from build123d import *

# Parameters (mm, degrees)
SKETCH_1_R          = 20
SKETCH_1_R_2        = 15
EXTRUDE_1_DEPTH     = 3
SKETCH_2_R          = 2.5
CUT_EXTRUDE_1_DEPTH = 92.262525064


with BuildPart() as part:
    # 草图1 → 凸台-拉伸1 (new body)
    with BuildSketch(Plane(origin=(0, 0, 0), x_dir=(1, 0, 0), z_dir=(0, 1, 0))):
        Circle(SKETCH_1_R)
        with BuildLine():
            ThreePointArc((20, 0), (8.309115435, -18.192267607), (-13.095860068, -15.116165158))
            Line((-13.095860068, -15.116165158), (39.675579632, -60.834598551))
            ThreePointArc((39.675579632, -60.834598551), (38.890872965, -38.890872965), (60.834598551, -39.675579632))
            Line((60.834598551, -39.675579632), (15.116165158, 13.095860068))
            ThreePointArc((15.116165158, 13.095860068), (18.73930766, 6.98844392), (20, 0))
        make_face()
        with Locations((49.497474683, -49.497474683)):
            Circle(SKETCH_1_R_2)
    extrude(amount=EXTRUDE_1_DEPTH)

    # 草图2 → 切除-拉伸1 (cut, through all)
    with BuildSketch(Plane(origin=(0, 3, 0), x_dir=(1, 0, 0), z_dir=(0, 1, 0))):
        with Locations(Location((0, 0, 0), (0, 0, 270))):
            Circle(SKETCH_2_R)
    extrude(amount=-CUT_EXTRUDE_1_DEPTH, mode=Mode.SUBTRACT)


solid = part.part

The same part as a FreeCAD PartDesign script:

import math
import FreeCAD as App
import Part
import Sketcher
from FreeCAD import Vector
Q = App.Units.Quantity

doc = App.newDocument("Part")
params = doc.addObject("Spreadsheet::Sheet", "Params")
for row, (alias, value) in enumerate([
    ("sketch1_radius", "20 mm"),
    ("sketch1_radius2", "15 mm"),
    ("pad1_length", "3 mm"),
    ("sketch2_diameter", "5 mm"),
], start=1):
    params.set(f"A{row}", alias)
    params.set(f"B{row}", "=" + value)
    params.setAlias(f"B{row}", alias)

body = doc.addObject("PartDesign::Body", "Body")

# Sketch on XZ plane
sketch1 = doc.addObject("Sketcher::SketchObject", "Sketch")
body.addObject(sketch1)
sketch1.AttachmentSupport = (doc.XZ_Plane, [""])
sketch1.MapMode = "FlatFace"
sketch1.addGeometry([
    Part.ArcOfCircle(Part.Circle(Vector(0, 0, 0), Vector(0, 0, 1), 20), math.radians(131), math.radians(319)),
    Part.LineSegment(Vector(-13, 15, 0), Vector(40, 61, 0)),
    Part.ArcOfCircle(Part.Circle(Vector(49, 49, 0), Vector(0, 0, 1), 15), math.radians(-41), math.radians(131)),
    Part.LineSegment(Vector(61, 40, 0), Vector(15, -13, 0)),
], False)
sketch1.addConstraint([
    Sketcher.Constraint("Tangent", 0, 1, 1, 1),
    Sketcher.Constraint("Tangent", 1, 2, 2, 2),
    Sketcher.Constraint("Tangent", 2, 1, 3, 1),
    Sketcher.Constraint("Tangent", 3, 2, 0, 2),
    Sketcher.Constraint("Coincident", 0, 3, -1, 1),
    Sketcher.Constraint("Radius", 0, Q("20 mm")),
    Sketcher.Constraint("Radius", 2, Q("15 mm")),
    Sketcher.Constraint("Distance", 1, Q("69.8212 mm")),
    Sketcher.Constraint("DistanceY", -1, 1, 1, 2, Q("60.834599 mm")),
])
sketch1.setExpression("Constraints[5]", "Params.sketch1_radius")
sketch1.setExpression("Constraints[6]", "Params.sketch1_radius2")
pad1 = doc.addObject("PartDesign::Pad", "Pad")
body.addObject(pad1)
pad1.Profile = sketch1
pad1.setExpression("Length", "Params.pad1_length")
pad1.Reversed = True

# Sketch on XZ plane
sketch2 = doc.addObject("Sketcher::SketchObject", "Sketch001")
body.addObject(sketch2)
sketch2.AttachmentSupport = (doc.XZ_Plane, [""])
sketch2.MapMode = "FlatFace"
sketch2.AttachmentOffset = App.Placement(Vector(0, 0, -3), App.Rotation())
sketch2.addGeometry(Part.Circle(Vector(0, 0, 0), Vector(0, 0, 1), 2.5), False)
sketch2.addConstraint([
    Sketcher.Constraint("Coincident", 0, 3, -1, 1),
    Sketcher.Constraint("Diameter", 0, Q("5 mm")),
])
sketch2.setExpression("Constraints[1]", "Params.sketch2_diameter")
pocket1 = doc.addObject("PartDesign::Pocket", "Pocket")
body.addObject(pocket1)
pocket1.Profile = sketch2
pocket1.Type = "ThroughAll"
pocket1.Reversed = True

doc.recompute()
